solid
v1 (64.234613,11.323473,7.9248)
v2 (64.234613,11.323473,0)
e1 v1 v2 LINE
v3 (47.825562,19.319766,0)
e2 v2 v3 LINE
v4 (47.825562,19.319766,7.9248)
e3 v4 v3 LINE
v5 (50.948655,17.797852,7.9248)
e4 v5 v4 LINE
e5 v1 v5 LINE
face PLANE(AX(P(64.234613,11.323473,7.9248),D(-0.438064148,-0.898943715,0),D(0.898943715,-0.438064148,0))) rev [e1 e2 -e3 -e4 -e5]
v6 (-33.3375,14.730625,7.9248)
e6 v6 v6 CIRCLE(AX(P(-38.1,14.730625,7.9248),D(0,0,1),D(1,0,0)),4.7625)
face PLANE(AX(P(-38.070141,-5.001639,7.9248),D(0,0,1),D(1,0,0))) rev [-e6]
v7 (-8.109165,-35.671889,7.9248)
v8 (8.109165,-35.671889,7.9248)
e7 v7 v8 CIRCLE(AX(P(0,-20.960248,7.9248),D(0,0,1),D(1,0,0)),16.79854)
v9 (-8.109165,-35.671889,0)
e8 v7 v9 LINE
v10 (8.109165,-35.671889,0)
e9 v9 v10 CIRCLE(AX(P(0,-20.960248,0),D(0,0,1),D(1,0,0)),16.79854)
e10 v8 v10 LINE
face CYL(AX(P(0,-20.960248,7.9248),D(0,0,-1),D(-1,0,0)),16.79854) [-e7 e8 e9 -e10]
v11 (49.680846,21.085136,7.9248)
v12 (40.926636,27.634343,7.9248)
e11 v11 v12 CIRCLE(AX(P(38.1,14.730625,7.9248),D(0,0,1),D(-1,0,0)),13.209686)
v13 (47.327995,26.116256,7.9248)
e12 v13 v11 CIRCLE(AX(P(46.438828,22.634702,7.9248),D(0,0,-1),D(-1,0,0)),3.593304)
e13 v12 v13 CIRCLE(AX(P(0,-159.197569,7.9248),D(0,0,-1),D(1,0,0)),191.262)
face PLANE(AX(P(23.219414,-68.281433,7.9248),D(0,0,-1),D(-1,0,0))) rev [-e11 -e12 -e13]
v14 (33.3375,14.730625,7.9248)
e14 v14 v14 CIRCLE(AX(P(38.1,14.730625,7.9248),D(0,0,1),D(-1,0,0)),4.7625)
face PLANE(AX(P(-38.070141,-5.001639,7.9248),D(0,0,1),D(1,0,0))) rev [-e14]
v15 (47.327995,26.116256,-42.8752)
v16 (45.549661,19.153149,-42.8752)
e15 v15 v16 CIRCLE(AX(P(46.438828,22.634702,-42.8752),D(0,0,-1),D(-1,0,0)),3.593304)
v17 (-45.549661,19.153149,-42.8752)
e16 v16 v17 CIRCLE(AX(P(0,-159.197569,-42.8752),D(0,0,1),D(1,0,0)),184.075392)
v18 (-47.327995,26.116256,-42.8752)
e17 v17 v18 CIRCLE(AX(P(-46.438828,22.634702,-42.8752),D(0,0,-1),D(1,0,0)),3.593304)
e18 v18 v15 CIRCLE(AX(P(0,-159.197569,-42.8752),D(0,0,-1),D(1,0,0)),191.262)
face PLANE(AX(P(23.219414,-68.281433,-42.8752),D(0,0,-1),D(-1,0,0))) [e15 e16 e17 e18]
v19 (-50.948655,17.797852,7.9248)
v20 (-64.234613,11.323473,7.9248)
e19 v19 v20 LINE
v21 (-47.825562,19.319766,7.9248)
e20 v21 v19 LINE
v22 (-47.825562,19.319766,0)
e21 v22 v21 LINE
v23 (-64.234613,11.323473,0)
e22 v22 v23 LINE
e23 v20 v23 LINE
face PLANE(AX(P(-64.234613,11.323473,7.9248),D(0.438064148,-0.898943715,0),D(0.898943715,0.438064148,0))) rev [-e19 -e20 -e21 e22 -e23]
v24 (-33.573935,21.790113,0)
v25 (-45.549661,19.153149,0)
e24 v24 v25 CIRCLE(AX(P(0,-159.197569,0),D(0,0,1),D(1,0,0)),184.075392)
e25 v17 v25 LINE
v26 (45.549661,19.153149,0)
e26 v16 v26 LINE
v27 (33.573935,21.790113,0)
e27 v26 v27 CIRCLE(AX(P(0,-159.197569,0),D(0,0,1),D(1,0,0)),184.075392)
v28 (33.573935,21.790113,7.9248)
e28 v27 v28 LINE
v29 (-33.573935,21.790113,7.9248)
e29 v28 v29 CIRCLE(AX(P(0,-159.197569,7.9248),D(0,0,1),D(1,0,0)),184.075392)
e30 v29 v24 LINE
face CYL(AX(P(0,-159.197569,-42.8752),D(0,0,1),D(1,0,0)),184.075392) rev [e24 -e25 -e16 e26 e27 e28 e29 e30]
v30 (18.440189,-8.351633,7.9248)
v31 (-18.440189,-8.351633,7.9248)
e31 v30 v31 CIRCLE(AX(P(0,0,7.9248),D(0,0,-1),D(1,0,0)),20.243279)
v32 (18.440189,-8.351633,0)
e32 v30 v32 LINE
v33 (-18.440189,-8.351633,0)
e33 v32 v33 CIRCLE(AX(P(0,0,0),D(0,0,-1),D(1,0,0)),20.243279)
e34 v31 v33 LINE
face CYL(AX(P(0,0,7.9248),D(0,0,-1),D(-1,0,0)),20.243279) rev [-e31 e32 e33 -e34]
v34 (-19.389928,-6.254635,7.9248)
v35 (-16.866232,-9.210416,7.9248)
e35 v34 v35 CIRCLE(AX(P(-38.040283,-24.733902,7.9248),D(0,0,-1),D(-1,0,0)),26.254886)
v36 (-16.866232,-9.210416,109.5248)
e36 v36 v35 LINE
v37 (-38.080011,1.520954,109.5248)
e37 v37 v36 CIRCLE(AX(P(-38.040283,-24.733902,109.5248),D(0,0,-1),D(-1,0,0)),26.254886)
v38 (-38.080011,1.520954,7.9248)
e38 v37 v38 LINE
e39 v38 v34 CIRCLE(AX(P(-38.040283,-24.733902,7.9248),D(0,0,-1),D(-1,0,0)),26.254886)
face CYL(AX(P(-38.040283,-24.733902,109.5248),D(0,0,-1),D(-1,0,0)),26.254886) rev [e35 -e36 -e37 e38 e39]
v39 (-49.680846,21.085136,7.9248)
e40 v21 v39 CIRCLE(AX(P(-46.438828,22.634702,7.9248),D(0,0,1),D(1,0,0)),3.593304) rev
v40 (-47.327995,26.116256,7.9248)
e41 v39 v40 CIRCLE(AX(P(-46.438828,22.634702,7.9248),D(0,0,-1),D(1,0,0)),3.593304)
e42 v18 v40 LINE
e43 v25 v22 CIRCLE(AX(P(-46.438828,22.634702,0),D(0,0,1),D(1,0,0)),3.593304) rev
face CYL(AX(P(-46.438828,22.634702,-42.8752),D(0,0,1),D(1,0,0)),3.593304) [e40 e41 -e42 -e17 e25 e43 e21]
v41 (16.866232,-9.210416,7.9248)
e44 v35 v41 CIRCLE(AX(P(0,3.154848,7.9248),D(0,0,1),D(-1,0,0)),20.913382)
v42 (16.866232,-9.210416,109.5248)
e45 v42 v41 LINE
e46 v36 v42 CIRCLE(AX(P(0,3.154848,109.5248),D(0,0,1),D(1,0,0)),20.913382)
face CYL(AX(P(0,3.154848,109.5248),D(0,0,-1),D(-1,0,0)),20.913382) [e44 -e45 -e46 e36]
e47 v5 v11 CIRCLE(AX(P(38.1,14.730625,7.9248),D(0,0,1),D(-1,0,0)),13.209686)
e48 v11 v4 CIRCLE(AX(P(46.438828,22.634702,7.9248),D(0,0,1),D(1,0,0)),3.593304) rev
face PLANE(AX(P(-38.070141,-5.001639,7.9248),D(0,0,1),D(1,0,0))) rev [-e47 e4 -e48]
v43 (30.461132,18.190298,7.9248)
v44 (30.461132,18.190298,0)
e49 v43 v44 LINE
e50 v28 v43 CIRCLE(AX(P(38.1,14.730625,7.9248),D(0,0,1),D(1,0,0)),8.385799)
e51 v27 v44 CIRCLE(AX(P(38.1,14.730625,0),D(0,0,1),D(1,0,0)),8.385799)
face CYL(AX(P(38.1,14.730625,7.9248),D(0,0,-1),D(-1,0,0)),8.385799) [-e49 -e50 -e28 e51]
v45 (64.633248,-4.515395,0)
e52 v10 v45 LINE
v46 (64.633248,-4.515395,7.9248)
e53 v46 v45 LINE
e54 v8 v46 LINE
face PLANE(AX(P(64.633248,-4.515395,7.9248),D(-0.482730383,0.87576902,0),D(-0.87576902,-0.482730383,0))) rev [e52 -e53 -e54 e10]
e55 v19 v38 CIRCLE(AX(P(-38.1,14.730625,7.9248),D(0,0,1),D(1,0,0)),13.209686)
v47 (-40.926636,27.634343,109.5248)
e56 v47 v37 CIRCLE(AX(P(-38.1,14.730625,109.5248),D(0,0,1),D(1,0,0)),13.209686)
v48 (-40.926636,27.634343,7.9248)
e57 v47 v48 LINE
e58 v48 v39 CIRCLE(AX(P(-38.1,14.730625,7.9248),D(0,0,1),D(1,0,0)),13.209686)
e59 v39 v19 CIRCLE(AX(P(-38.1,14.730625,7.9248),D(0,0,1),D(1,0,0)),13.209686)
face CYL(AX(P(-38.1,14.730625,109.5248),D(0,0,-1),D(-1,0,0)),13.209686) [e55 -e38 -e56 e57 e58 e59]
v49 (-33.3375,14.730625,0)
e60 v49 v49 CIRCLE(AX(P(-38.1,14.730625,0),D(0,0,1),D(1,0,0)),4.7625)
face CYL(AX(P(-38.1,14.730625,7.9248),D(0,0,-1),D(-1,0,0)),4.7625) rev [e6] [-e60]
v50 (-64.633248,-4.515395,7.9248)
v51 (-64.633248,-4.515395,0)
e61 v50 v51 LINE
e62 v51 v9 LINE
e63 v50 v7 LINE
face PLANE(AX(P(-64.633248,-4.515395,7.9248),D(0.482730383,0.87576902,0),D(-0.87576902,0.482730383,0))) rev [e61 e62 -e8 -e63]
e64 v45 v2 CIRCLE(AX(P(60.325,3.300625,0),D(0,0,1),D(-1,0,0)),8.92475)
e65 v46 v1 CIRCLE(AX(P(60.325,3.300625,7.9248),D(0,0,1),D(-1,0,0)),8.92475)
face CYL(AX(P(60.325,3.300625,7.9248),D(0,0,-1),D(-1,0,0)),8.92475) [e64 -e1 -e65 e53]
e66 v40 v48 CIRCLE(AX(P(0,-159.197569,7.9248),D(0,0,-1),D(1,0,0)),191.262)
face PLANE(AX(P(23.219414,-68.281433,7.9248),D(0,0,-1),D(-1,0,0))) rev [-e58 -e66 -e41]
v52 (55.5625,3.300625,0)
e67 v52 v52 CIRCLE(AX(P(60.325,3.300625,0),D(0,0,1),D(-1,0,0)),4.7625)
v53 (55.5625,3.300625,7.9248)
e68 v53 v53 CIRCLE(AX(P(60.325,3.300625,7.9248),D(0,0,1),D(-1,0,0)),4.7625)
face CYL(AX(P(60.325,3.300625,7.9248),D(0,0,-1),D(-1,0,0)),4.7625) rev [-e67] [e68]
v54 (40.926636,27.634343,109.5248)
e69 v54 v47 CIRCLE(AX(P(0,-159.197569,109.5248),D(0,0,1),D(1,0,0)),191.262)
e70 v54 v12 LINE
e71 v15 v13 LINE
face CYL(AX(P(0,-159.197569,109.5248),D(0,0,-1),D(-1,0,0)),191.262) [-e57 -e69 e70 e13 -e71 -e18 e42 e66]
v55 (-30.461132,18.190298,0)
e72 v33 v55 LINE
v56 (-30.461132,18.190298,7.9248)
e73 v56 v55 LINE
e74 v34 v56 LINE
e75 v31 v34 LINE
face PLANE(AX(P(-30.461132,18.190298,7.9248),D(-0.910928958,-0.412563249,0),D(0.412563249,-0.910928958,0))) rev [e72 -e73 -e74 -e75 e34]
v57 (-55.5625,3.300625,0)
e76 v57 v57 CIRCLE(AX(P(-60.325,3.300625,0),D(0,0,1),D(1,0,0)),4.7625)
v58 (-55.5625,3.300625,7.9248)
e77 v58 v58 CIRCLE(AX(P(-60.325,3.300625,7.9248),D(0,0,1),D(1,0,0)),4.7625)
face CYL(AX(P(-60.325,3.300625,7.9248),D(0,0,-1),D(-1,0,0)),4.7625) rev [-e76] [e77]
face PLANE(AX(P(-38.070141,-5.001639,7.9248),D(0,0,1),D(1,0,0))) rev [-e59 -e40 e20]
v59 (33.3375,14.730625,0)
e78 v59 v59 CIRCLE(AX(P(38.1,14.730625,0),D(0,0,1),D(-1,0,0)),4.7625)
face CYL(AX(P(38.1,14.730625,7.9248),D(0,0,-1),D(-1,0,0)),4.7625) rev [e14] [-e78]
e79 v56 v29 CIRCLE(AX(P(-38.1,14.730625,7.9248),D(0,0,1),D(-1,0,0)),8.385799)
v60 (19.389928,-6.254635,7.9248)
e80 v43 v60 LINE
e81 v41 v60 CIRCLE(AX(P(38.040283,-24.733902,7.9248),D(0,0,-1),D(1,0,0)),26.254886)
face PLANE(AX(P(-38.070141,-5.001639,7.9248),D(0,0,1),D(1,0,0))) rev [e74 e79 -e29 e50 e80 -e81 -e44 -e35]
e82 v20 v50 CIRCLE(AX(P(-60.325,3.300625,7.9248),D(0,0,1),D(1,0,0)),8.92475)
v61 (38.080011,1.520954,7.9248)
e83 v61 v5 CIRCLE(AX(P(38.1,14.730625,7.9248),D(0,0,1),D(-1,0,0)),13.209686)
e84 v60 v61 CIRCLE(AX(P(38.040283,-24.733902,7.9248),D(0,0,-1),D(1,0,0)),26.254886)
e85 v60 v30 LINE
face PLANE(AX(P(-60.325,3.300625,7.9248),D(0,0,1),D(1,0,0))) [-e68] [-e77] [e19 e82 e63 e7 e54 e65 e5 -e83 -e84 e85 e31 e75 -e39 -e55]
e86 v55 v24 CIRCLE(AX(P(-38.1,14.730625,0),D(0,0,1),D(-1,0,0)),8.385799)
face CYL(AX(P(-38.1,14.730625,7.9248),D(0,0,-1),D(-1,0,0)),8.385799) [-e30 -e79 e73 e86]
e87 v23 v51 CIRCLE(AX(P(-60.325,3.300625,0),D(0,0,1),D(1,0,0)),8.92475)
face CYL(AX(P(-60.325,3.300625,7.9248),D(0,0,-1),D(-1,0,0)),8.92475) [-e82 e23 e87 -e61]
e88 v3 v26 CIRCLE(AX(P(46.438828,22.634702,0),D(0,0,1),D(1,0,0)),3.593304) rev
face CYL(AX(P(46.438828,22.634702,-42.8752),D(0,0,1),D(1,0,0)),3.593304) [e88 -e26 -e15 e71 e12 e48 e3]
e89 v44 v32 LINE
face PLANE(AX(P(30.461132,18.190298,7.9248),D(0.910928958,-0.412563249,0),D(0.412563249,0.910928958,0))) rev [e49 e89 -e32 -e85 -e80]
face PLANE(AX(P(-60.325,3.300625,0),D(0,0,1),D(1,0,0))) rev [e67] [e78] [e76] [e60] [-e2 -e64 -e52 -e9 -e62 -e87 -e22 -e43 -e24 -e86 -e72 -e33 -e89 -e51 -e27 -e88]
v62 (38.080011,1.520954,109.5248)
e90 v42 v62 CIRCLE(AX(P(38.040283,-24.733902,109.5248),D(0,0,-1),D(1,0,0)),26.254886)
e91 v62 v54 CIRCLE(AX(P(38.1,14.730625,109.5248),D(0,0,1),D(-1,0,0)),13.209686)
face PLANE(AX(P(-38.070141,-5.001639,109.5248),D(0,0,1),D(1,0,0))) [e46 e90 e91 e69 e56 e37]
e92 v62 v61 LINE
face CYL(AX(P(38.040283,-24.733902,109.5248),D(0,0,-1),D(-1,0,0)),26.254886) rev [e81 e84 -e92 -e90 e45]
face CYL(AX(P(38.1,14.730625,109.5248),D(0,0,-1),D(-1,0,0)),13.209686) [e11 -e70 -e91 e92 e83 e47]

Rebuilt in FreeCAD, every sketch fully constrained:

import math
import FreeCAD as App
import Part
import Sketcher

V = App.Vector
Q = App.Units.Quantity

doc = App.newDocument("Part")
body = doc.addObject("PartDesign::Body", "Body")

# Sketch on XY plane
sketch1 = body.newObject("Sketcher::SketchObject", "Sketch")
sketch1.AttachmentSupport = (doc.getObject("XY_Plane"), [""])
sketch1.MapMode = "FlatFace"
sketch1.addGeometry(Part.LineSegment(V(-42, 22, 0), V(-64, 11, 0)), False)
sketch1.addGeometry(Part.ArcOfCircle(Part.Circle(V(-60, 3, 0), V(0, 0, 1), 9), math.radians(116), math.radians(241)), False)
sketch1.addGeometry(Part.LineSegment(V(-65, -5, 0), V(-8, -36, 0)), False)
sketch1.addGeometry(Part.ArcOfCircle(Part.Circle(V(0, -21, 0), V(0, 0, 1), 17), math.radians(-119), math.radians(-61)), False)
sketch1.addGeometry(Part.LineSegment(V(8, -36, 0), V(65, -5, 0)), False)
sketch1.addGeometry(Part.ArcOfCircle(Part.Circle(V(60, 3, 0), V(0, 0, 1), 9), math.radians(-61), math.radians(64)), False)
sketch1.addGeometry(Part.LineSegment(V(64, 11, 0), V(42, 22, 0)), False)
sketch1.addGeometry(Part.ArcOfCircle(Part.Circle(V(38, 15, 0), V(0, 0, 1), 8), math.radians(64), math.radians(156)), False)
sketch1.addGeometry(Part.LineSegment(V(30, 18, 0), V(18, -8, 0)), False)
sketch1.addGeometry(Part.ArcOfCircle(Part.Circle(V(0, 0, 0), V(0, 0, 1), 20), math.radians(-156), math.radians(-24)), False)
sketch1.addGeometry(Part.LineSegment(V(-18, -8, 0), V(-30, 18, 0)), False)
sketch1.addGeometry(Part.ArcOfCircle(Part.Circle(V(-38, 15, 0), V(0, 0, 1), 8), math.radians(24), math.radians(116)), False)
sketch1.addConstraint(Sketcher.Constraint("Tangent", 0, 2, 1, 1))
sketch1.addConstraint(Sketcher.Constraint("Tangent", 1, 2, 2, 1))
sketch1.addConstraint(Sketcher.Constraint("Tangent", 2, 2, 3, 1))
sketch1.addConstraint(Sketcher.Constraint("Tangent", 3, 2, 4, 1))
sketch1.addConstraint(Sketcher.Constraint("Tangent", 4, 2, 5, 1))
sketch1.addConstraint(Sketcher.Constraint("Tangent", 5, 2, 6, 1))
sketch1.addConstraint(Sketcher.Constraint("Tangent", 6, 2, 7, 1))
sketch1.addConstraint(Sketcher.Constraint("Tangent", 7, 2, 8, 1))
sketch1.addConstraint(Sketcher.Constraint("Tangent", 8, 2, 9, 2))
sketch1.addConstraint(Sketcher.Constraint("Tangent", 9, 1, 10, 1))
sketch1.addConstraint(Sketcher.Constraint("Tangent", 10, 2, 11, 1))
sketch1.addConstraint(Sketcher.Constraint("Tangent", 11, 2, 0, 1))
sketch1.addConstraint(Sketcher.Constraint("Coincident", 9, 3, -1, 1))
sketch1.addConstraint(Sketcher.Constraint("Equal", 1, 5))
sketch1.addConstraint(Sketcher.Constraint("Equal", 7, 11))
sketch1.addConstraint(Sketcher.Constraint("Symmetric", 1, 3, 5, 3, -2))
sketch1.addConstraint(Sketcher.Constraint("Symmetric", 7, 3, 11, 3, -2))
sketch1.addConstraint(Sketcher.Constraint("PointOnObject", 3, 3, -2))
sketch1.addConstraint(Sketcher.Constraint("DistanceX", 11, 3, 7, 3, Q("3 in")))
sketch1.addConstraint(Sketcher.Constraint("Radius", 7, Q("8.385799 mm")))
sketch1.addConstraint(Sketcher.Constraint("DistanceX", 1, 3, 5, 3, Q("4.75 in")))
sketch1.addConstraint(Sketcher.Constraint("DistanceY", 5, 3, 7, 3, Q("0.45 in")))
sketch1.addConstraint(Sketcher.Constraint("Radius", 1, Q("8.92475 mm")))
sketch1.addConstraint(Sketcher.Constraint("Radius", 3, Q("16.79854 mm")))
sketch1.addConstraint(Sketcher.Constraint("Radius", 9, Q("20.243279 mm")))
sketch1.addConstraint(Sketcher.Constraint("DistanceY", 3, 3, -1, 1, Q("20.960248 mm")))
sketch1.addConstraint(Sketcher.Constraint("DistanceX", 1, 2, -1, 1, Q("64.633248 mm")))
pad1 = body.newObject("PartDesign::Pad", "Pad")
pad1.Profile = sketch1
pad1.Length = Q("0.312 in")

# Sketch on XY plane
sketch2 = body.newObject("Sketcher::SketchObject", "Sketch001")
sketch2.AttachmentSupport = (doc.getObject("XY_Plane"), [""])
sketch2.MapMode = "FlatFace"
sketch2.addGeometry(Part.Circle(V(0, 0, 0), V(0, 0, 1), 15.1), False)
sketch2.addGeometry(Part.Circle(V(-60.3, 3.3, 0), V(0, 0, 1), 4.8), False)
sketch2.addGeometry(Part.Circle(V(-38.1, 14.7, 0), V(0, 0, 1), 4.8), False)
sketch2.addGeometry(Part.Circle(V(38.1, 14.7, 0), V(0, 0, 1), 4.8), False)
sketch2.addGeometry(Part.Circle(V(60.3, 3.3, 0), V(0, 0, 1), 4.8), False)
sketch2.addConstraint(Sketcher.Constraint("Coincident", 0, 3, -1, 1))
sketch2.addConstraint(Sketcher.Constraint("Equal", 1, 2))
sketch2.addConstraint(Sketcher.Constraint("Equal", 2, 3))
sketch2.addConstraint(Sketcher.Constraint("Equal", 3, 4))
sketch2.addConstraint(Sketcher.Constraint("Symmetric", 2, 3, 3, 3, -2))
sketch2.addConstraint(Sketcher.Constraint("Symmetric", 1, 3, 4, 3, -2))
sketch2.addConstraint(Sketcher.Constraint("Diameter", 0, Q("1.19 in")))
sketch2.addConstraint(Sketcher.Constraint("Diameter", 1, Q("0.375 in")))
sketch2.addConstraint(Sketcher.Constraint("DistanceX", 2, 3, 3, 3, Q("3 in")))
sketch2.addConstraint(Sketcher.Constraint("DistanceY", 1, 3, 2, 3, Q("0.45 in")))
sketch2.addConstraint(Sketcher.Constraint("DistanceX", 1, 3, 4, 3, Q("4.75 in")))
sketch2.addConstraint(Sketcher.Constraint("DistanceY", -1, 1, 1, 3, Q("3.300625 mm")))
pocket1 = body.newObject("PartDesign::Pocket", "Pocket")
pocket1.Profile = sketch2
pocket1.Type = "ThroughAll"
pocket1.Reversed = True

# Sketch on XY plane
sketch3 = body.newObject("Sketcher::SketchObject", "Sketch002")
sketch3.AttachmentSupport = (doc.getObject("XY_Plane"), [""])
sketch3.MapMode = "FlatFace"
sketch3.AttachmentOffset = App.Placement(V(0, 0, 0.312 * 25.4), App.Rotation())
sketch3.addGeometry(Part.ArcOfCircle(Part.Circle(V(0, -159, 0), V(0, 0, 1), 191), math.radians(90), math.radians(102.36)), False)
sketch3.addGeometry(Part.ArcOfCircle(Part.Circle(V(-38, 15, 0), V(0, 0, 1), 13), math.radians(102), math.radians(270)), False)
sketch3.addGeometry(Part.ArcOfCircle(Part.Circle(V(-38, -25, 0), V(0, 0, 1), 26), math.radians(36), math.radians(90)), False)
sketch3.addGeometry(Part.ArcOfCircle(Part.Circle(V(0, 3, 0), V(0, 0, 1), 21), math.radians(-144), math.radians(-90)), False)
sketch3.addGeometry(Part.ArcOfCircle(Part.Circle(V(0, 3, 0), V(0, 0, 1), 21), math.radians(-90), math.radians(-36)), False)
sketch3.addGeometry(Part.ArcOfCircle(Part.Circle(V(38, -25, 0), V(0, 0, 1), 26), math.radians(90), math.radians(144)), False)
sketch3.addGeometry(Part.ArcOfCircle(Part.Circle(V(38, 15, 0), V(0, 0, 1), 13), math.radians(-90), math.radians(78)), False)
sketch3.addGeometry(Part.ArcOfCircle(Part.Circle(V(0, -159, 0), V(0, 0, 1), 191), math.radians(77.64), math.radians(90)), False)
sketch3.addConstraint(Sketcher.Constraint("Tangent", 0, 2, 1, 1))
sketch3.addConstraint(Sketcher.Constraint("Tangent", 1, 2, 2, 2))
sketch3.addConstraint(Sketcher.Constraint("Tangent", 2, 1, 3, 1))
sketch3.addConstraint(Sketcher.Constraint("Tangent", 3, 2, 4, 1))
sketch3.addConstraint(Sketcher.Constraint("Tangent", 4, 2, 5, 2))
sketch3.addConstraint(Sketcher.Constraint("Tangent", 5, 1, 6, 1))
sketch3.addConstraint(Sketcher.Constraint("Tangent", 6, 2, 7, 1))
sketch3.addConstraint(Sketcher.Constraint("Tangent", 7, 2, 0, 1))
sketch3.addConstraint(Sketcher.Constraint("Equal", 3, 4))
sketch3.addConstraint(Sketcher.Constraint("Equal", 2, 5))
sketch3.addConstraint(Sketcher.Constraint("Equal", 1, 6))
sketch3.addConstraint(Sketcher.Constraint("Equal", 0, 7))
sketch3.addConstraint(Sketcher.Constraint("Symmetric", 2, 3, 5, 3, -2))
sketch3.addConstraint(Sketcher.Constraint("PointOnObject", 0, 3, -2))
sketch3.addConstraint(Sketcher.Constraint("PointOnObject", 3, 2, -2))
sketch3.addConstraint(Sketcher.Constraint("PointOnObject", 7, 2, -2))
sketch3.addConstraint(Sketcher.Constraint("Radius", 0, Q("7.53 in")))
sketch3.addConstraint(Sketcher.Constraint("DistanceX", 1, 3, 6, 3, Q("3 in")))
sketch3.addConstraint(Sketcher.Constraint("Radius", 3, Q("20.913382 mm")))
sketch3.addConstraint(Sketcher.Constraint("Radius", 1, Q("13.209686 mm")))
sketch3.addConstraint(Sketcher.Constraint("Radius", 2, Q("26.254886 mm")))
sketch3.addConstraint(Sketcher.Constraint("DistanceY", 0, 3, -1, 1, Q("159.197569 mm")))
sketch3.addConstraint(Sketcher.Constraint("DistanceY", -1, 1, 3, 3, Q("3.154848 mm")))
pad2 = body.newObject("PartDesign::Pad", "Pad001")
pad2.Profile = sketch3
pad2.Length = Q("4 in")

# Sketch on XY plane
sketch4 = body.newObject("Sketcher::SketchObject", "Sketch003")
sketch4.AttachmentSupport = (doc.getObject("XY_Plane"), [""])
sketch4.MapMode = "FlatFace"
sketch4.AttachmentOffset = App.Placement(V(0, 0, -1.688 * 25.4), App.Rotation())
sketch4.addGeometry(Part.ArcOfCircle(Part.Circle(V(0, -159.2, 0), V(0, 0, 1), 191.3), math.radians(76), math.radians(104)), False)
sketch4.addGeometry(Part.ArcOfCircle(Part.Circle(V(46.4, 22.6, 0), V(0, 0, 1), 3.6), math.radians(-104), math.radians(76)), False)
sketch4.addGeometry(Part.ArcOfCircle(Part.Circle(V(0, -159.2, 0), V(0, 0, 1), 184.1), math.radians(76), math.radians(104)), False)
sketch4.addGeometry(Part.ArcOfCircle(Part.Circle(V(-46.4, 22.6, 0), V(0, 0, 1), 3.6), math.radians(104), math.radians(284)), False)
sketch4.addConstraint(Sketcher.Constraint("Tangent", 0, 1, 1, 2))
sketch4.addConstraint(Sketcher.Constraint("Tangent", 1, 1, 2, 1))
sketch4.addConstraint(Sketcher.Constraint("Tangent", 2, 2, 3, 2))
sketch4.addConstraint(Sketcher.Constraint("Tangent", 3, 1, 0, 2))
sketch4.addConstraint(Sketcher.Constraint("Coincident", 2, 3, 0, 3))
sketch4.addConstraint(Sketcher.Constraint("Symmetric", 1, 3, 3, 3, -2))
sketch4.addConstraint(Sketcher.Constraint("Radius", 0, Q("7.53 in")))
sketch4.addConstraint(Sketcher.Constraint("Radius", 2, Q("184.075392 mm")))
sketch4.addConstraint(Sketcher.Constraint("DistanceY", 0, 3, -1, 1, Q("159.197569 mm")))
sketch4.addConstraint(Sketcher.Constraint("DistanceX", -1, 1, 1, 3, Q("46.438828 mm")))
pad3 = body.newObject("PartDesign::Pad", "Pad002")
pad3.Profile = sketch4
pad3.Length = Q("2 in")

doc.recompute()
